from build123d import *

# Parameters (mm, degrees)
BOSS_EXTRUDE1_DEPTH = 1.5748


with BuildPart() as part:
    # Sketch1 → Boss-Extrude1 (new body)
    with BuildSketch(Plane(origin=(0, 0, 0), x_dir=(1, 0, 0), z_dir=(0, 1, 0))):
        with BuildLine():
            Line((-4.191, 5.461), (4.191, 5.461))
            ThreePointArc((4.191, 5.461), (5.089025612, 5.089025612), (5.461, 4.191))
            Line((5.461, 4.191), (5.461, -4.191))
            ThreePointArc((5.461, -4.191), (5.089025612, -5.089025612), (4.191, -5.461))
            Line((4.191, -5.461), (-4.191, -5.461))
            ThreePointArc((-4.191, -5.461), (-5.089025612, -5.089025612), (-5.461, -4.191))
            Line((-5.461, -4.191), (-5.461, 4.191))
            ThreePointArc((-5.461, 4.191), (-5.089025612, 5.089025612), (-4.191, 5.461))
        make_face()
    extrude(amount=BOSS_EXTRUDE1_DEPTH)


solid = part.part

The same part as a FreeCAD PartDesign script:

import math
import FreeCAD as App
import Part
import Sketcher

V = App.Vector
Q = App.Units.Quantity

doc = App.newDocument("Part")
body = doc.addObject("PartDesign::Body", "Body")

# Sketch on XZ plane
sketch1 = body.newObject("Sketcher::SketchObject", "Sketch")
sketch1.AttachmentSupport = (doc.getObject("XZ_Plane"), [""])
sketch1.MapMode = "FlatFace"
sketch1.addGeometry([
    Part.LineSegment(V(4.191, -5.461, 0), V(-4.191, -5.461, 0)),  # 0
    Part.ArcOfCircle(Part.Circle(V(-4.191, -4.191, 0), V(0, 0, 1), 1.27), math.radians(180), math.radians(270)),  # 1
    Part.LineSegment(V(-5.461, -4.191, 0), V(-5.461, 4.191, 0)),  # 2
    Part.ArcOfCircle(Part.Circle(V(-4.191, 4.191, 0), V(0, 0, 1), 1.27), math.radians(90), math.radians(180)),  # 3
    Part.LineSegment(V(-4.191, 5.461, 0), V(4.191, 5.461, 0)),  # 4
    Part.ArcOfCircle(Part.Circle(V(4.191, 4.191, 0), V(0, 0, 1), 1.27), math.radians(0), math.radians(90)),  # 5
    Part.LineSegment(V(5.461, 4.191, 0), V(5.461, -4.191, 0)),  # 6
    Part.ArcOfCircle(Part.Circle(V(4.191, -4.191, 0), V(0, 0, 1), 1.27), math.radians(-90), math.radians(0)),  # 7
], False)
sketch1.addConstraint([
    Sketcher.Constraint("Tangent", 0, 2, 1, 2),
    Sketcher.Constraint("Tangent", 1, 1, 2, 1),
    Sketcher.Constraint("Tangent", 2, 2, 3, 2),
    Sketcher.Constraint("Tangent", 3, 1, 4, 1),
    Sketcher.Constraint("Tangent", 4, 2, 5, 2),
    Sketcher.Constraint("Tangent", 5, 1, 6, 1),
    Sketcher.Constraint("Tangent", 6, 2, 7, 2),
    Sketcher.Constraint("Tangent", 7, 1, 0, 1),
    Sketcher.Constraint("Horizontal", 0),
    Sketcher.Constraint("Vertical", 2),
    Sketcher.Constraint("Horizontal", 4),
    Sketcher.Constraint("Vertical", 6),
    Sketcher.Constraint("Equal", 1, 3),
    Sketcher.Constraint("Equal", 3, 5),
    Sketcher.Constraint("Equal", 5, 7),
    Sketcher.Constraint("Symmetric", 1, 3, 5, 3, -1, 1),
    Sketcher.Constraint("Equal", 4, 2),
    Sketcher.Constraint("Radius", 1, Q("0.05 in")),
    Sketcher.Constraint("DistanceX", 0, 2, 0, 1, Q("0.33 in")),
])
pad1 = body.newObject("PartDesign::Pad", "Pad")
pad1.Profile = sketch1
pad1.Length = Q("0.062 in")
pad1.Reversed = True

doc.recompute()
